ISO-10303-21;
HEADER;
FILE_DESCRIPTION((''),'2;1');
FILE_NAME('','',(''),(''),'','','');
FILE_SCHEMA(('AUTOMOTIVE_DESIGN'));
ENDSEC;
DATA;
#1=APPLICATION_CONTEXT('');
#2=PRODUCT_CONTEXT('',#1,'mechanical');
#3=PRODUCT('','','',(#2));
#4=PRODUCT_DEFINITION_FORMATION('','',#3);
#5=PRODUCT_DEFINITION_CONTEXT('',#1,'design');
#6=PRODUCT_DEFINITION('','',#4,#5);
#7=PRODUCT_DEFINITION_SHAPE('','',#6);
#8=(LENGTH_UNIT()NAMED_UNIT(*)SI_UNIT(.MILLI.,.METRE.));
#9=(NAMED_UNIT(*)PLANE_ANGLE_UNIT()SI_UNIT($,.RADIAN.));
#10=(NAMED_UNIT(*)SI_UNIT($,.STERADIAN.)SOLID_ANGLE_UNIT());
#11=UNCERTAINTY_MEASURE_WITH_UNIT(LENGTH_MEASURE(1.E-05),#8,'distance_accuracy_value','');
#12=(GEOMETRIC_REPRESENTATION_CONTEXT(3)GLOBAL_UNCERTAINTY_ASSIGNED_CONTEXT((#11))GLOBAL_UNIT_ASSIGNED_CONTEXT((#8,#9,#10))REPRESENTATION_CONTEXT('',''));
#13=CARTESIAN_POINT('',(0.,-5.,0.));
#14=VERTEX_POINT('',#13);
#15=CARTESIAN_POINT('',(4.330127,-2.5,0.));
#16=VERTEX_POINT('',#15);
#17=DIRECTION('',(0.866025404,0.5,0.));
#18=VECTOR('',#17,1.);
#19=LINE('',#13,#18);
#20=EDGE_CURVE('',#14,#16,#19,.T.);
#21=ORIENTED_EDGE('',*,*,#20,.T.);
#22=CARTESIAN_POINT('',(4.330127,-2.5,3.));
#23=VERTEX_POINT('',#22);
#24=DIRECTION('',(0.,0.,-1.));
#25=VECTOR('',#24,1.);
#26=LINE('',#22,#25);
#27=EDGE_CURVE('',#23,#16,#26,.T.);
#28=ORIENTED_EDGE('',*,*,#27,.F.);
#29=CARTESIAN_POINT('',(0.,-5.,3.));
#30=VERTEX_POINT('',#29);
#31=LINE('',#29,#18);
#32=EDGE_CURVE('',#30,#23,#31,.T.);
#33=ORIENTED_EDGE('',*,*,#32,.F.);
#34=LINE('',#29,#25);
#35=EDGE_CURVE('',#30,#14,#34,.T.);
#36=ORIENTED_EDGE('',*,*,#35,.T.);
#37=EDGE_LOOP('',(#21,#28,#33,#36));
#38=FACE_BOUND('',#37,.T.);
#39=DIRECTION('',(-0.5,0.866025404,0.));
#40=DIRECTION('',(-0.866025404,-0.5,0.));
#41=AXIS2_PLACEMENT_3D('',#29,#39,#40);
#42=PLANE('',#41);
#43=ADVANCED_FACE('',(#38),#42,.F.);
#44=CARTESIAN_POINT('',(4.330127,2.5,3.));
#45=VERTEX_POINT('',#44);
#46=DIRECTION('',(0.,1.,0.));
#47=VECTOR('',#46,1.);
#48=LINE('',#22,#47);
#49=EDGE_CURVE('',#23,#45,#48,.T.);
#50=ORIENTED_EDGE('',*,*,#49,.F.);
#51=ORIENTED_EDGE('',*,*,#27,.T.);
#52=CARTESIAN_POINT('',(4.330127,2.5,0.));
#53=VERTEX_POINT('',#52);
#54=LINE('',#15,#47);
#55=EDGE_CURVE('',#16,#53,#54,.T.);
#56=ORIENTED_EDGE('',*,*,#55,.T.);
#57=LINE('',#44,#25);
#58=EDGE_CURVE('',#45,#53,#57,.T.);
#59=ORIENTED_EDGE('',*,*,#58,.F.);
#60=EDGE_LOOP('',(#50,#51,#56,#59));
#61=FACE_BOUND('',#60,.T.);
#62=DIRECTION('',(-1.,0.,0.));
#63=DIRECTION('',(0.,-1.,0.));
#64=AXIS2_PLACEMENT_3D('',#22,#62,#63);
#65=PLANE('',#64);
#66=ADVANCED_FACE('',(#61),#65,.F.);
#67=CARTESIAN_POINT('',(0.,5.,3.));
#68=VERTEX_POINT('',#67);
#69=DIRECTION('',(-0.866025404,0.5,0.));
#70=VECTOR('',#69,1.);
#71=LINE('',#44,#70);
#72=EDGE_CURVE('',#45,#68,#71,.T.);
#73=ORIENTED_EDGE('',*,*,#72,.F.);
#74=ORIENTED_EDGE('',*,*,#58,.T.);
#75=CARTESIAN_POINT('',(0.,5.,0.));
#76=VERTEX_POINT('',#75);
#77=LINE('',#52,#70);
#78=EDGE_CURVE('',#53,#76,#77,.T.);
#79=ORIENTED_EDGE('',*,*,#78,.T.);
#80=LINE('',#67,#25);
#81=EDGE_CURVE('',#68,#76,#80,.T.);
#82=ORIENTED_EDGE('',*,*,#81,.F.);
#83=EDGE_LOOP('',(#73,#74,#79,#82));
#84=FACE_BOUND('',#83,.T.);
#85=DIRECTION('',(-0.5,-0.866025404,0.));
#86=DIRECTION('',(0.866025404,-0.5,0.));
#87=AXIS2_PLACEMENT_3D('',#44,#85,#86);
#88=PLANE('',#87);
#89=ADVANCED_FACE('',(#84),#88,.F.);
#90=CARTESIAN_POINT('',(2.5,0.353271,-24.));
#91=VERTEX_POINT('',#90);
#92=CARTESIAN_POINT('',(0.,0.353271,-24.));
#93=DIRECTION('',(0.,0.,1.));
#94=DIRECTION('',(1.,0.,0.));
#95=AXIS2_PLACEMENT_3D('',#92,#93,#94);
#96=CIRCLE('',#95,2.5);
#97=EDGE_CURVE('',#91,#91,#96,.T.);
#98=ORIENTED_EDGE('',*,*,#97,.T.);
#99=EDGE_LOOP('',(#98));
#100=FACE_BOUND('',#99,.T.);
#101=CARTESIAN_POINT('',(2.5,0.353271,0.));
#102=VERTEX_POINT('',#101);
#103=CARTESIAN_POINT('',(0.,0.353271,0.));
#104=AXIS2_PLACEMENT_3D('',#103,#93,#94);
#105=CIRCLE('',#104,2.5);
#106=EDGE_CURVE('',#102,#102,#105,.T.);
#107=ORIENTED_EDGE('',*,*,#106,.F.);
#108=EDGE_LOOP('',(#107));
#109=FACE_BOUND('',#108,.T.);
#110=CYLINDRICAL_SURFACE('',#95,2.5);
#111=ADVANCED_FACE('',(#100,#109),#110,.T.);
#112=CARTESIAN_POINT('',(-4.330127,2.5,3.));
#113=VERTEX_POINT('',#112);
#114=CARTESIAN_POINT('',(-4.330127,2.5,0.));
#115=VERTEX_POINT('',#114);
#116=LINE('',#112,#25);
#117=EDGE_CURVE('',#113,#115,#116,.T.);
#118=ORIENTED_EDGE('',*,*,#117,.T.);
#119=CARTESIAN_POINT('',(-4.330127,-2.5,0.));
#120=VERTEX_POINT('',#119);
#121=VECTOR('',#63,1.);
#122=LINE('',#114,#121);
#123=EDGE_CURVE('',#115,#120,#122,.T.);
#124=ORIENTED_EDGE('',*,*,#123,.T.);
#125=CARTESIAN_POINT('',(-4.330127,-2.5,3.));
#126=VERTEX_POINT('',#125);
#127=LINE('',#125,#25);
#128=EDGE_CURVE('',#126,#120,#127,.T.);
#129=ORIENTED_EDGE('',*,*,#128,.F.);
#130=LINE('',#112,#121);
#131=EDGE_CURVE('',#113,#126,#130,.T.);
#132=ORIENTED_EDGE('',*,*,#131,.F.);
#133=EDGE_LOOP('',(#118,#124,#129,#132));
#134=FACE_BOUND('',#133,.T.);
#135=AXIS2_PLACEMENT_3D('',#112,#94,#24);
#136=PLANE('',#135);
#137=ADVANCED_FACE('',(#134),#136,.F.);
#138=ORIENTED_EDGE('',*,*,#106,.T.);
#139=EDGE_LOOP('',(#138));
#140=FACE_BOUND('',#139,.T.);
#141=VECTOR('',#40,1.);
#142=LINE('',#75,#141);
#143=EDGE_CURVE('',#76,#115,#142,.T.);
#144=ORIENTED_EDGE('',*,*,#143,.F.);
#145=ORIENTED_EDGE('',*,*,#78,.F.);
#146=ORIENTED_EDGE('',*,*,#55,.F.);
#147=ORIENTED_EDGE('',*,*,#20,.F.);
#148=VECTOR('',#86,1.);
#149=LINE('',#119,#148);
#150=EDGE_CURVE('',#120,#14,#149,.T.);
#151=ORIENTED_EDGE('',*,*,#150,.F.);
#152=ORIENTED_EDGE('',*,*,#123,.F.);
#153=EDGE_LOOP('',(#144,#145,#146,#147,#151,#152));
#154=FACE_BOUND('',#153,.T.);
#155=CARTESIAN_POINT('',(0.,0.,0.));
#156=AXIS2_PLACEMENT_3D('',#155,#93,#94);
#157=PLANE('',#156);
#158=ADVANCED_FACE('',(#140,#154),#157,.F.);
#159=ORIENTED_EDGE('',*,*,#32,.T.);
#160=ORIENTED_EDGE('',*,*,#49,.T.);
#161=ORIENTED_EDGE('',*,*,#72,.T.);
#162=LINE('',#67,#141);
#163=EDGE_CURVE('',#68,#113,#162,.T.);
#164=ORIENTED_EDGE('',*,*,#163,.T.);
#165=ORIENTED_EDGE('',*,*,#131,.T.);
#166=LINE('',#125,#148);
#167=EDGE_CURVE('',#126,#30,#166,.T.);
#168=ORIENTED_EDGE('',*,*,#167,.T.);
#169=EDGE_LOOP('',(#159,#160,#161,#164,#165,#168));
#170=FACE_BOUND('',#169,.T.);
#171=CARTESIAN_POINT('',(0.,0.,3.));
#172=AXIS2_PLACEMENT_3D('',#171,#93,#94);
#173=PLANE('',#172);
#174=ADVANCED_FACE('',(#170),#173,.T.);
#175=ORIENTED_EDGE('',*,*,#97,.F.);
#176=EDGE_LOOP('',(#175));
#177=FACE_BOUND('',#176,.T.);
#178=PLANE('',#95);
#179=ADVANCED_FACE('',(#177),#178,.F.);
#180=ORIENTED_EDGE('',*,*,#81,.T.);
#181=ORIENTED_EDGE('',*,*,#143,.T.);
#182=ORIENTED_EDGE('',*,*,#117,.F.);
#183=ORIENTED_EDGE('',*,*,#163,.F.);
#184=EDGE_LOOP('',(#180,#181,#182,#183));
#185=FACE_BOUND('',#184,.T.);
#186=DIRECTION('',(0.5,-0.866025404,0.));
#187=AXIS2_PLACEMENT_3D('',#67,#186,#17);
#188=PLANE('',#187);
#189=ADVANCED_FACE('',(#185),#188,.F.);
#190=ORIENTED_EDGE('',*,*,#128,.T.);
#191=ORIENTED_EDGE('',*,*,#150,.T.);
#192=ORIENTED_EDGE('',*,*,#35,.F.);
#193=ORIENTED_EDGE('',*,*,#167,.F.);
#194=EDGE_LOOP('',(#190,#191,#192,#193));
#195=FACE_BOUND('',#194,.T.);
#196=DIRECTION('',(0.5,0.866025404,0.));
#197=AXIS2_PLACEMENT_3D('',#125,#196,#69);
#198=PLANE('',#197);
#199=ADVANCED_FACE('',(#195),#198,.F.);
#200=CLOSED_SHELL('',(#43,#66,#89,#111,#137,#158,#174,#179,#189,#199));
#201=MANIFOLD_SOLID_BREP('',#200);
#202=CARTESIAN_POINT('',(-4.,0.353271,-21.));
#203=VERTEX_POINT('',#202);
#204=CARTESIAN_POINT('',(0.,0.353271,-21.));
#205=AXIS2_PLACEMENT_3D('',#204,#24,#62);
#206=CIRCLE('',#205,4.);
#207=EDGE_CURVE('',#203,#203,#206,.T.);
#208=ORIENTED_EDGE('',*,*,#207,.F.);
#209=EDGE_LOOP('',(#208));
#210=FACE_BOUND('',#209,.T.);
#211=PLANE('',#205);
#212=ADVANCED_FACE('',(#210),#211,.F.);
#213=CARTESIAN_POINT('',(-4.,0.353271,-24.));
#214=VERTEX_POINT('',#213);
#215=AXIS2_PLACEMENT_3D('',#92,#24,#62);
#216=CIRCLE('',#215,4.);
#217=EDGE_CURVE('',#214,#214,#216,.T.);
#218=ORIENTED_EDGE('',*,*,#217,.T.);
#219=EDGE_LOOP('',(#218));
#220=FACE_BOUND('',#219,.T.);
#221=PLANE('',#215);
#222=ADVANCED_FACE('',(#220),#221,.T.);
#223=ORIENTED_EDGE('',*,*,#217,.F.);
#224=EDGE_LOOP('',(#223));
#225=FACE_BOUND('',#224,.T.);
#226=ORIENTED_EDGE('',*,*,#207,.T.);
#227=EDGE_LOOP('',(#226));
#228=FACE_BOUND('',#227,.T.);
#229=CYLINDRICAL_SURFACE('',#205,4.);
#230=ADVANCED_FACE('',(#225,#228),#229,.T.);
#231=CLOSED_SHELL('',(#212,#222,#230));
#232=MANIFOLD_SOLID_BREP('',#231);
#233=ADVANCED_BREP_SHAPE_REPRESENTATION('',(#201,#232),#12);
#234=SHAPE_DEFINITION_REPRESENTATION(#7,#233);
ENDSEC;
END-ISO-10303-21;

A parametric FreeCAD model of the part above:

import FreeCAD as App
import Part
import Sketcher
Q = App.Units.Quantity


def add_polygon(sketch, points):
    """Adds a closed chain of lines whose ends are joined by coincident constraints."""
    first, n = sketch.GeometryCount, len(points)
    for a, b in zip(points, points[1:] + points[:1]):
        sketch.addGeometry(Part.LineSegment(App.Vector(*a, 0), App.Vector(*b, 0)), False)
    for i in range(n):
        sketch.addConstraint(Sketcher.Constraint("Coincident", first + i, 2, first + (i + 1) % n, 1))

doc = App.newDocument("Part")
body = doc.addObject("PartDesign::Body", "Body")

sketch1 = body.newObject("Sketcher::SketchObject", "Sketch")
sketch1.AttachmentSupport = (doc.getObject("XY_Plane"), [""])
sketch1.MapMode = "FlatFace"
sketch1.addGeometry(Part.Circle(App.Vector(0, 0.4, 0), App.Vector(0, 0, 1), 2.5), False)
sketch1.addConstraint(Sketcher.Constraint("PointOnObject", 0, 3, -2))
sketch1.addConstraint(Sketcher.Constraint("Diameter", 0, Q("5 mm")))
sketch1.addConstraint(Sketcher.Constraint("DistanceY", -1, 1, 0, 3, Q("0.353271 mm")))
pad1 = body.newObject("PartDesign::Pad", "Pad")
pad1.Profile = sketch1
pad1.Length = 24
pad1.Reversed = True

sketch2 = body.newObject("Sketcher::SketchObject", "Sketch001")
sketch2.AttachmentSupport = (doc.getObject("XY_Plane"), [""])
sketch2.MapMode = "FlatFace"
add_polygon(sketch2, [(4, -2), (4, 2), (0, 5), (-4, 2), (-4, -2), (0, -5)])
sketch2.addConstraint(Sketcher.Constraint("Vertical", 0))
sketch2.addConstraint(Sketcher.Constraint("Vertical", 3))
sketch2.addConstraint(Sketcher.Constraint("Symmetric", 0, 2, 3, 2, -1, 1))
sketch2.addConstraint(Sketcher.Constraint("Symmetric", 1, 2, 4, 2, -1, 1))
sketch2.addConstraint(Sketcher.Constraint("PointOnObject", 1, 2, -2))
sketch2.addConstraint(Sketcher.Constraint("Parallel", 2, 5))
sketch2.addConstraint(Sketcher.Constraint("Horizontal", 0, 2, 2, 2))
sketch2.addConstraint(Sketcher.Constraint("DistanceY", 0, 1, 0, 2, Q("5 mm")))
sketch2.addConstraint(Sketcher.Constraint("Angle", 1, Q("150 deg")))
sketch2.addConstraint(Sketcher.Constraint("Distance", 1, Q("5 mm")))
pad2 = body.newObject("PartDesign::Pad", "Pad001")
pad2.Profile = sketch2
pad2.Length = 3
body2 = doc.addObject("PartDesign::Body", "Body001")

sketch3 = body2.newObject("Sketcher::SketchObject", "Sketch002")
sketch3.AttachmentSupport = (doc.getObject("XY_Plane001"), [""])
sketch3.MapMode = "FlatFace"
sketch3.AttachmentOffset = App.Placement(App.Vector(0, 0, -24), App.Rotation())
sketch3.addGeometry(Part.Circle(App.Vector(0, 0.4, 0), App.Vector(0, 0, 1), 4), False)
sketch3.addConstraint(Sketcher.Constraint("PointOnObject", 0, 3, -2))
sketch3.addConstraint(Sketcher.Constraint("Diameter", 0, Q("8 mm")))
sketch3.addConstraint(Sketcher.Constraint("DistanceY", -1, 1, 0, 3, Q("0.353271 mm")))
pad3 = body2.newObject("PartDesign::Pad", "Pad002")
pad3.Profile = sketch3
pad3.Length = 3

doc.recompute()
